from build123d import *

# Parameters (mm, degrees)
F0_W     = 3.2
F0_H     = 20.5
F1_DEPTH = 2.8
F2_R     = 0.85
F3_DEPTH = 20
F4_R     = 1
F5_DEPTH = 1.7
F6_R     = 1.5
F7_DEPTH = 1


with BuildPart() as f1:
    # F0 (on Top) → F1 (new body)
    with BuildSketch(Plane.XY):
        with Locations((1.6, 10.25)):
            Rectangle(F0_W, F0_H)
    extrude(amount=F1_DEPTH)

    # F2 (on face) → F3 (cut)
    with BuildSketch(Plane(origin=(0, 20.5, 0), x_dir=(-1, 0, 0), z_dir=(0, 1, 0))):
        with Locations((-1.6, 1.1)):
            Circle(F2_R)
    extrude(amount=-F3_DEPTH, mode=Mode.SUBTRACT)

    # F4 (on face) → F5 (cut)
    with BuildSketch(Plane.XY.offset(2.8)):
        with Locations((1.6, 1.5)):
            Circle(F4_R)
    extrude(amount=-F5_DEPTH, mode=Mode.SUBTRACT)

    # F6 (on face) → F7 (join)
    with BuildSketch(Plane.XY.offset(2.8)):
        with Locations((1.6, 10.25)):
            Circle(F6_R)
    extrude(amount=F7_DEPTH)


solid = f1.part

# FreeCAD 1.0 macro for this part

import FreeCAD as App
import Part
import Sketcher
Q = App.Units.Quantity

doc = App.newDocument("Part")
params = doc.addObject("Spreadsheet::Sheet", "Params")
for row, (alias, value) in enumerate([
    ("sketch1_width", "3.2 mm"),
    ("sketch1_height", "20.5 mm"),
    ("pad1_length", "2.8 mm"),
    ("sketch2_diameter", "1.7 mm"),
    ("pocket1_length", "20 mm"),
    ("sketch3_diameter", "2 mm"),
    ("pocket2_length", "1.7 mm"),
    ("sketch4_diameter", "3 mm"),
    ("pad2_length", "1 mm"),
], start=1):
    params.set(f"A{row}", alias)
    params.set(f"B{row}", "=" + value)
    params.setAlias(f"B{row}", alias)

body = doc.addObject("PartDesign::Body", "Body")

sketch1 = body.newObject("Sketcher::SketchObject", "Sketch")
sketch1.AttachmentSupport = (doc.getObject("XY_Plane"), [""])
sketch1.MapMode = "FlatFace"
sketch1.addGeometry(Part.LineSegment(App.Vector(0, 20.5, 0), App.Vector(0, 0, 0)), False)
sketch1.addGeometry(Part.LineSegment(App.Vector(0, 0, 0), App.Vector(3.2, 0, 0)), False)
sketch1.addGeometry(Part.LineSegment(App.Vector(3.2, 0, 0), App.Vector(3.2, 20.5, 0)), False)
sketch1.addGeometry(Part.LineSegment(App.Vector(3.2, 20.5, 0), App.Vector(0, 20.5, 0)), False)
sketch1.addConstraint(Sketcher.Constraint("Coincident", 0, 2, 1, 1))
sketch1.addConstraint(Sketcher.Constraint("Coincident", 1, 2, 2, 1))
sketch1.addConstraint(Sketcher.Constraint("Coincident", 2, 2, 3, 1))
sketch1.addConstraint(Sketcher.Constraint("Coincident", 3, 2, 0, 1))
sketch1.addConstraint(Sketcher.Constraint("Vertical", 0))
sketch1.addConstraint(Sketcher.Constraint("Horizontal", 1))
sketch1.addConstraint(Sketcher.Constraint("Vertical", 2))
sketch1.addConstraint(Sketcher.Constraint("Horizontal", 3))
sketch1.addConstraint(Sketcher.Constraint("Coincident", 0, 2, -1, 1))
sketch1.addConstraint(Sketcher.Constraint("DistanceX", 1, 1, 1, 2, Q("3.2 mm")))
sketch1.addConstraint(Sketcher.Constraint("DistanceY", 0, 2, 0, 1, Q("20.5 mm")))
sketch1.setExpression("Constraints[9]", "Params.sketch1_width")
sketch1.setExpression("Constraints[10]", "Params.sketch1_height")
pad1 = body.newObject("PartDesign::Pad", "Pad")
pad1.Profile = sketch1
pad1.setExpression("Length", "Params.pad1_length")

sketch2 = body.newObject("Sketcher::SketchObject", "Sketch001")
sketch2.AttachmentSupport = (doc.getObject("XZ_Plane"), [""])
sketch2.MapMode = "FlatFace"
sketch2.AttachmentOffset = App.Placement(App.Vector(0, 0, -20.5), App.Rotation())
sketch2.addGeometry(Part.Circle(App.Vector(1.6, 1.1, 0), App.Vector(0, 0, 1), 0.85), False)
sketch2.addConstraint(Sketcher.Constraint("Diameter", 0, Q("1.7 mm")))
sketch2.addConstraint(Sketcher.Constraint("DistanceX", -1, 1, 0, 3, Q("1.6 mm")))
sketch2.addConstraint(Sketcher.Constraint("DistanceY", -1, 1, 0, 3, Q("1.1 mm")))
sketch2.setExpression("Constraints[0]", "Params.sketch2_diameter")
pocket1 = body.newObject("PartDesign::Pocket", "Pocket")
pocket1.Profile = sketch2
pocket1.setExpression("Length", "Params.pocket1_length")
pocket1.Reversed = True

sketch3 = body.newObject("Sketcher::SketchObject", "Sketch002")
sketch3.AttachmentSupport = (doc.getObject("XY_Plane"), [""])
sketch3.MapMode = "FlatFace"
sketch3.AttachmentOffset = App.Placement(App.Vector(0, 0, 2.8), App.Rotation())
sketch3.addGeometry(Part.Circle(App.Vector(1.6, 1.5, 0), App.Vector(0, 0, 1), 1), False)
sketch3.addConstraint(Sketcher.Constraint("Diameter", 0, Q("2 mm")))
sketch3.addConstraint(Sketcher.Constraint("DistanceX", -1, 1, 0, 3, Q("1.6 mm")))
sketch3.addConstraint(Sketcher.Constraint("DistanceY", -1, 1, 0, 3, Q("1.5 mm")))
sketch3.setExpression("Constraints[0]", "Params.sketch3_diameter")
pocket2 = body.newObject("PartDesign::Pocket", "Pocket001")
pocket2.Profile = sketch3
pocket2.setExpression("Length", "Params.pocket2_length")

sketch4 = body.newObject("Sketcher::SketchObject", "Sketch003")
sketch4.AttachmentSupport = (doc.getObject("XY_Plane"), [""])
sketch4.MapMode = "FlatFace"
sketch4.AttachmentOffset = App.Placement(App.Vector(0, 0, 2.8), App.Rotation())
sketch4.addGeometry(Part.Circle(App.Vector(1.6, 10.25, 0), App.Vector(0, 0, 1), 1.5), False)
sketch4.addConstraint(Sketcher.Constraint("Diameter", 0, Q("3 mm")))
sketch4.addConstraint(Sketcher.Constraint("DistanceX", -1, 1, 0, 3, Q("1.6 mm")))
sketch4.addConstraint(Sketcher.Constraint("DistanceY", -1, 1, 0, 3, Q("10.25 mm")))
sketch4.setExpression("Constraints[0]", "Params.sketch4_diameter")
pad2 = body.newObject("PartDesign::Pad", "Pad001")
pad2.Profile = sketch4
pad2.setExpression("Length", "Params.pad2_length")

doc.recompute()
